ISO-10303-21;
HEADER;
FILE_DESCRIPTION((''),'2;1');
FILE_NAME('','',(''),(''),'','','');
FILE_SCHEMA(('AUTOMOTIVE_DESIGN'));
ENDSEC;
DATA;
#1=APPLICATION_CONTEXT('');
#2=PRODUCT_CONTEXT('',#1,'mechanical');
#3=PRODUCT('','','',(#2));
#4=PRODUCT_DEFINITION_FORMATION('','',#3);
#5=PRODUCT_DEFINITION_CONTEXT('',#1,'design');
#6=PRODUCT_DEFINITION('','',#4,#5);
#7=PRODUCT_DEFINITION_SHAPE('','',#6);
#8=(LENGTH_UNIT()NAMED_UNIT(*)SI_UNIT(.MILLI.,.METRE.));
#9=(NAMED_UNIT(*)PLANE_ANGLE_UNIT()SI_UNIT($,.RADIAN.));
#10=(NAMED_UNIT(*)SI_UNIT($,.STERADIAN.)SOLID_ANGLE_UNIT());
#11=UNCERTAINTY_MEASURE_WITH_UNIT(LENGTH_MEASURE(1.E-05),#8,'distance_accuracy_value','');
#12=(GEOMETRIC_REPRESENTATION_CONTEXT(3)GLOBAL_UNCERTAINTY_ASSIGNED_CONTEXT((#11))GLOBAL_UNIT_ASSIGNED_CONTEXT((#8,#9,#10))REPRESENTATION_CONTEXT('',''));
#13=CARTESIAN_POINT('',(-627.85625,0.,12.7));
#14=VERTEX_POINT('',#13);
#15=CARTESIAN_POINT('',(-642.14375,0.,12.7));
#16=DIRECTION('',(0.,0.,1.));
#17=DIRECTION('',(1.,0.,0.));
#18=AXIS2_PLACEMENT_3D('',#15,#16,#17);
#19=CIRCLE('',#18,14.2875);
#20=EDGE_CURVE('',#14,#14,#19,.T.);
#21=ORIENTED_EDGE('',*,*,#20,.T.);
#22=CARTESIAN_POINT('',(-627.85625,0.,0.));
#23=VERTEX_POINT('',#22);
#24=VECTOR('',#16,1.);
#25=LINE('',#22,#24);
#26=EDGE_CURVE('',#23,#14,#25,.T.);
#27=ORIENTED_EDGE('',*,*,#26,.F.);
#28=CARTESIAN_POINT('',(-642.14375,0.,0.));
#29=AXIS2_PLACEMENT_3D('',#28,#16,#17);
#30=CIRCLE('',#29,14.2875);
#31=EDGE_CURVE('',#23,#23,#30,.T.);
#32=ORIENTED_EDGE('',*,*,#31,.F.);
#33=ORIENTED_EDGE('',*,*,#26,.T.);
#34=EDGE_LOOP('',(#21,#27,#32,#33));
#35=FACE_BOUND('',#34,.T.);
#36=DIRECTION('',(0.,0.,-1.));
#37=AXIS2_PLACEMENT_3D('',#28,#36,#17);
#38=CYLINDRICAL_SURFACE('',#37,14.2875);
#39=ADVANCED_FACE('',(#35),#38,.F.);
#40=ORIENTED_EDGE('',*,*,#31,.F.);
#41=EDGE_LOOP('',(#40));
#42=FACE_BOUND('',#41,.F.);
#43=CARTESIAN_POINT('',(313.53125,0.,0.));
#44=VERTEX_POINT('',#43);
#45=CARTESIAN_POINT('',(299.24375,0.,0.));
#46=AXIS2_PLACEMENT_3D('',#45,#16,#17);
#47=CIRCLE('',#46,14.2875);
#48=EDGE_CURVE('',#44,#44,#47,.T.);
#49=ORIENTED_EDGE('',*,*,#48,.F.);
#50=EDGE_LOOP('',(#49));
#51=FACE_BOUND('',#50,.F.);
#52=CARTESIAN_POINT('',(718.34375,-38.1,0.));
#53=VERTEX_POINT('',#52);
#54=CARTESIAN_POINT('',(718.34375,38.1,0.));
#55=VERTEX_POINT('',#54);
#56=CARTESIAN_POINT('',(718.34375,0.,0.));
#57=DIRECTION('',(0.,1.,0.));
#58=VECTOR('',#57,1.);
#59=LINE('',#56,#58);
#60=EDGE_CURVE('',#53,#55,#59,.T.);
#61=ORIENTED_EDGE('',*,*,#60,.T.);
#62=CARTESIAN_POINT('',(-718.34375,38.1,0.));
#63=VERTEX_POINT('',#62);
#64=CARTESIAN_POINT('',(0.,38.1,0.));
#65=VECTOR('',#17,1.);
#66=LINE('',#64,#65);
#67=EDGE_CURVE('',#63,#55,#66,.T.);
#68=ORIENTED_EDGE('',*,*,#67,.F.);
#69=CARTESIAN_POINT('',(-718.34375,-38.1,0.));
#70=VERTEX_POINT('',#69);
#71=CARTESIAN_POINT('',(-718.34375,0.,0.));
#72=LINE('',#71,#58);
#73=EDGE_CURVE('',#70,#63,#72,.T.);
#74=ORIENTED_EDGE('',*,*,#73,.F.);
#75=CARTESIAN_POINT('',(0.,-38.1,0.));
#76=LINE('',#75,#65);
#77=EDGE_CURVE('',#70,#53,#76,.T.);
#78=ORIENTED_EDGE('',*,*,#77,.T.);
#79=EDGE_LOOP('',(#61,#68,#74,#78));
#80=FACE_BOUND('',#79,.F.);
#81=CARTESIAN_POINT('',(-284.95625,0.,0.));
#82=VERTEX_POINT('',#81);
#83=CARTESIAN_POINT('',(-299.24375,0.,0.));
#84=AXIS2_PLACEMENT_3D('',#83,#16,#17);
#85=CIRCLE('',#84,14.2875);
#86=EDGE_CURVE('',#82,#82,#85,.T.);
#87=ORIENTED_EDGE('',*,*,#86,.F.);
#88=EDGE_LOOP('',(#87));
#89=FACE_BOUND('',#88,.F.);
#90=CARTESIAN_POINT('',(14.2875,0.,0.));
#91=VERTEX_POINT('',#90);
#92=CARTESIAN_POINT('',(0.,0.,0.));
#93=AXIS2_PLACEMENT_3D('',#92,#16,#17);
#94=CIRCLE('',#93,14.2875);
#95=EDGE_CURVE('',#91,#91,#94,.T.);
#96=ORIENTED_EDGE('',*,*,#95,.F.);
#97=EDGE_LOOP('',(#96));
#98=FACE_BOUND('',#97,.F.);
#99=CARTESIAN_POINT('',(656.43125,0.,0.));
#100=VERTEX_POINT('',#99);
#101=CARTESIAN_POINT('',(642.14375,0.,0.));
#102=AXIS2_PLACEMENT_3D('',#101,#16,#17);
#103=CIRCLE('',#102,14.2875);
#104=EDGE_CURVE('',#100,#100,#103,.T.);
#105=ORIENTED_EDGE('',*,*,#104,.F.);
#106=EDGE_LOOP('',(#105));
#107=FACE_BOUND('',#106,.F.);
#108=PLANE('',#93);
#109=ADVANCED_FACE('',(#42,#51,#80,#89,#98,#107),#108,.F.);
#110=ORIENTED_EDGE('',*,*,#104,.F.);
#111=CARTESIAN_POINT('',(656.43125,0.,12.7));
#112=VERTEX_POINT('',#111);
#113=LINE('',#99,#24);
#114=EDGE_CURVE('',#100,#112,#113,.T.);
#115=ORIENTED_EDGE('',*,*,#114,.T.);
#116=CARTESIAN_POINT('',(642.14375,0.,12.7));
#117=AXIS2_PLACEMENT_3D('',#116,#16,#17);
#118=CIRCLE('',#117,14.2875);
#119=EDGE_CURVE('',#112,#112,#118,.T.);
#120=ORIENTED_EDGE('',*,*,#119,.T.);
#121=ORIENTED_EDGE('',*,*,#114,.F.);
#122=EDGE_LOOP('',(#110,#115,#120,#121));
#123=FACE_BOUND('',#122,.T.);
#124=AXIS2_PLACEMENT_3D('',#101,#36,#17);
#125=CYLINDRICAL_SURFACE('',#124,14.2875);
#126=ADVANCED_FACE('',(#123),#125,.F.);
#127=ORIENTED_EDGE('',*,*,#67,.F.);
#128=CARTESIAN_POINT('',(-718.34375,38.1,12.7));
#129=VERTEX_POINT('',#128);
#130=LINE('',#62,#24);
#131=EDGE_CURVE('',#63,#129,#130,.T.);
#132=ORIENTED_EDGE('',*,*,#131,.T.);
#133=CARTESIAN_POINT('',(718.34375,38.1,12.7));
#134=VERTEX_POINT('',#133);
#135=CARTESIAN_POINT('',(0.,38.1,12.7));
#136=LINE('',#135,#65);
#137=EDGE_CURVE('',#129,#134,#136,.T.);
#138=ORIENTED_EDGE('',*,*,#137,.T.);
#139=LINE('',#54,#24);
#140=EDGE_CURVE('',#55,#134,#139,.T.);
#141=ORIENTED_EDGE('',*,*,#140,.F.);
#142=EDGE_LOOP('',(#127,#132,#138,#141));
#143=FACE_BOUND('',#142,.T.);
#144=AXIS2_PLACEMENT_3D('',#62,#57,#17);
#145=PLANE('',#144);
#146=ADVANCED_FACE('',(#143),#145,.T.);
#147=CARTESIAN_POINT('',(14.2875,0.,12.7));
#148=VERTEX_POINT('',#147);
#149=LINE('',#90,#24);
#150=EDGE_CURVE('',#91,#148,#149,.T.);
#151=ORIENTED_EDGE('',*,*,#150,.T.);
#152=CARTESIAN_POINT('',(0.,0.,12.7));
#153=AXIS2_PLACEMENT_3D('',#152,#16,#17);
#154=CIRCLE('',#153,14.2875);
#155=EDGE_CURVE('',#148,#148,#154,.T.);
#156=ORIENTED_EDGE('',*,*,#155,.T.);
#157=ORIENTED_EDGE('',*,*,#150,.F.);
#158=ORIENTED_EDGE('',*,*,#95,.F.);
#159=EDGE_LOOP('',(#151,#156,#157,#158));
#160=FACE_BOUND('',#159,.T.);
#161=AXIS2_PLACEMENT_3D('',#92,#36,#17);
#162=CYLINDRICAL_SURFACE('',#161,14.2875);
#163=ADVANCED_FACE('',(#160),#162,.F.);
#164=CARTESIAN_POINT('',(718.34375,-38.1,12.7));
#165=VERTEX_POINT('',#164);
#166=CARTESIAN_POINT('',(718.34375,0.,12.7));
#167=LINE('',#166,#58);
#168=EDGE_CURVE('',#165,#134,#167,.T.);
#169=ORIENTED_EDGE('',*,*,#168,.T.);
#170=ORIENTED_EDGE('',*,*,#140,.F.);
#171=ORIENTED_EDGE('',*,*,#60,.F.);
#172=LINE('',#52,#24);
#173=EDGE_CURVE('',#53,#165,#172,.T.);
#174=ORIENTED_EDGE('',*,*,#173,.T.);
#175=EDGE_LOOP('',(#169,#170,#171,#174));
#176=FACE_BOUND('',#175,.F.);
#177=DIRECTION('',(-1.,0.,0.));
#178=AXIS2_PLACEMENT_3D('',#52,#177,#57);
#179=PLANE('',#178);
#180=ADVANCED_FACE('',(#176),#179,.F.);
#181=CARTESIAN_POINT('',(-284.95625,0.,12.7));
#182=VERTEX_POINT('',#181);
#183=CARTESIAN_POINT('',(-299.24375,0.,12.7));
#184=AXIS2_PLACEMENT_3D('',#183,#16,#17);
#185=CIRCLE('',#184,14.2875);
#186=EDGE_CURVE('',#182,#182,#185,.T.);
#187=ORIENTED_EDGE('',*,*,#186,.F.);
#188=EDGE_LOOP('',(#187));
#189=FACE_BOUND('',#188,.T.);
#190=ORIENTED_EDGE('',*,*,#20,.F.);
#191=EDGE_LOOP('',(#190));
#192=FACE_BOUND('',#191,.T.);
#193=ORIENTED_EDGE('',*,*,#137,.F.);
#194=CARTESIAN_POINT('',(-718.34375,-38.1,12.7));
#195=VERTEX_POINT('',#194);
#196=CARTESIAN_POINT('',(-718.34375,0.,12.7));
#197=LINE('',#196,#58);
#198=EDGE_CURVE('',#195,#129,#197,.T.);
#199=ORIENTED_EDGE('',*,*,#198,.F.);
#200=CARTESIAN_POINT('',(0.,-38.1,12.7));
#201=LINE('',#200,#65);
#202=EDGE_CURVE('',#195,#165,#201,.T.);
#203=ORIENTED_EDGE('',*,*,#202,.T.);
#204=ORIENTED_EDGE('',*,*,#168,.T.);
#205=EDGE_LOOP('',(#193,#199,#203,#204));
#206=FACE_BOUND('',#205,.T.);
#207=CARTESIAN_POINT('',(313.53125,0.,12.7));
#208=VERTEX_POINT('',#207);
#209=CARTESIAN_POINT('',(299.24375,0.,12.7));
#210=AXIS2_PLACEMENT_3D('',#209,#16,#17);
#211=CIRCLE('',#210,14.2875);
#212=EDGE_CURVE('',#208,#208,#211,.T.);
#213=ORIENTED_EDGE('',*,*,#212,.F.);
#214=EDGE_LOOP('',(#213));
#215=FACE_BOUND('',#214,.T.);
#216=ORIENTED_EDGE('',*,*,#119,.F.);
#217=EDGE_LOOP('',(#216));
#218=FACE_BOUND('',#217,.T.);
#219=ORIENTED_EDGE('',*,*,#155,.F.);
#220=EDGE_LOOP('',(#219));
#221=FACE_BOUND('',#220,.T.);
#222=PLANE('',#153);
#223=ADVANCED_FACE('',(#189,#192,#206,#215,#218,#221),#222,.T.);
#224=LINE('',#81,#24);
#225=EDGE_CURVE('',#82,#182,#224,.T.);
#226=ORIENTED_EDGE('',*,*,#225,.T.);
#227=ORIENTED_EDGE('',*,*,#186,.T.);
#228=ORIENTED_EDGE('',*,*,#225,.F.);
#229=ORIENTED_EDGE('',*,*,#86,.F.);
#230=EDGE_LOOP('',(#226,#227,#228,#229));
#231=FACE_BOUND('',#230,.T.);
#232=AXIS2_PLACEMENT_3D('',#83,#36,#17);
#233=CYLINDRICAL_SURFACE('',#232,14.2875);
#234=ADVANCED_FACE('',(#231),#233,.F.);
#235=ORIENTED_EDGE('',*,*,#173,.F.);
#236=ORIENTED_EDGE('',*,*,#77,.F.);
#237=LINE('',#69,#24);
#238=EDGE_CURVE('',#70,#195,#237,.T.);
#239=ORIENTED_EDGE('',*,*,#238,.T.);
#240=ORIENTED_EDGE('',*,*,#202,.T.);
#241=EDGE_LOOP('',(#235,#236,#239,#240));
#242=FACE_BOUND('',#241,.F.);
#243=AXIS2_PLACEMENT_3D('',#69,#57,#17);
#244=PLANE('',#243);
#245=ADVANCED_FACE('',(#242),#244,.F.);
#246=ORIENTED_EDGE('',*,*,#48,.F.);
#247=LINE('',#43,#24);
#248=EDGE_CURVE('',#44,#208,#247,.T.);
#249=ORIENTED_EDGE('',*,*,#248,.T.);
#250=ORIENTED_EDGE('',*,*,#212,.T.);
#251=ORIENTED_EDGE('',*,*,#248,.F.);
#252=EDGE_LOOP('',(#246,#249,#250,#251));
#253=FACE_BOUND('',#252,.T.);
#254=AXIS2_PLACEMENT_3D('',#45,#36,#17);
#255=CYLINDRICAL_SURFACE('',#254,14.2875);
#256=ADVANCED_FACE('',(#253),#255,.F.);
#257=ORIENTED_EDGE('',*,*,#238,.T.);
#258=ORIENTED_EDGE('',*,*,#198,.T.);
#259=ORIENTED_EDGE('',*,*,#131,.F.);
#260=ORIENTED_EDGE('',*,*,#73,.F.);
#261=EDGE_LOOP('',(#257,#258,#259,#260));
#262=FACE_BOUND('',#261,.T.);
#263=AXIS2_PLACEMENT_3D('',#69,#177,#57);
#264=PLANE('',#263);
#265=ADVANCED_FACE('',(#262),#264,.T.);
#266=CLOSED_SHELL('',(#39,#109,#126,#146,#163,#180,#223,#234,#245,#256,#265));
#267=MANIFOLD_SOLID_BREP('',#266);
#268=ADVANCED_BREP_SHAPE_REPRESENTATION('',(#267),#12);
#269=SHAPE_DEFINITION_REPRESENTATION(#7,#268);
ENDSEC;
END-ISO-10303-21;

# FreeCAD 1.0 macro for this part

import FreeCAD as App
import Part
import Sketcher
from FreeCAD import Vector
Q = App.Units.Quantity

doc = App.newDocument("Part")
body = doc.addObject("PartDesign::Body", "Body")

# Sketch on XY plane
sketch1 = body.newObject("Sketcher::SketchObject", "Sketch")
sketch1.AttachmentSupport = (doc.getObject("XY_Plane"), [""])
sketch1.MapMode = "FlatFace"
sketch1.addGeometry([
    Part.LineSegment(Vector(-718, 38, 0), Vector(-718, -38, 0)),  # 0
    Part.LineSegment(Vector(-718, -38, 0), Vector(718, -38, 0)),  # 1
    Part.LineSegment(Vector(718, -38, 0), Vector(718, 38, 0)),  # 2
    Part.LineSegment(Vector(718, 38, 0), Vector(-718, 38, 0)),  # 3
    Part.Circle(Vector(-642, 0, 0), Vector(0, 0, 1), 14),  # 4
    Part.Circle(Vector(-299, 0, 0), Vector(0, 0, 1), 14),  # 5
    Part.Circle(Vector(0, 0, 0), Vector(0, 0, 1), 14),  # 6
    Part.Circle(Vector(299, 0, 0), Vector(0, 0, 1), 14),  # 7
    Part.Circle(Vector(642, 0, 0), Vector(0, 0, 1), 14),  # 8
], False)
sketch1.addConstraint([
    Sketcher.Constraint("Coincident", 0, 2, 1, 1),
    Sketcher.Constraint("Coincident", 1, 2, 2, 1),
    Sketcher.Constraint("Coincident", 2, 2, 3, 1),
    Sketcher.Constraint("Coincident", 3, 2, 0, 1),
    Sketcher.Constraint("Vertical", 0),
    Sketcher.Constraint("Horizontal", 1),
    Sketcher.Constraint("Vertical", 2),
    Sketcher.Constraint("Horizontal", 3),
    Sketcher.Constraint("Coincident", 6, 3, -1, 1),
    Sketcher.Constraint("Equal", 4, 5),
    Sketcher.Constraint("Equal", 5, 6),
    Sketcher.Constraint("Equal", 6, 7),
    Sketcher.Constraint("Equal", 7, 8),
    Sketcher.Constraint("Symmetric", 5, 3, 7, 3, -1, 1),
    Sketcher.Constraint("Symmetric", 4, 3, 8, 3, -1, 1),
    Sketcher.Constraint("Symmetric", 0, 2, 2, 2, -1, 1),
    Sketcher.Constraint("PointOnObject", 4, 3, -1),
    Sketcher.Constraint("PointOnObject", 5, 3, -1),
    Sketcher.Constraint("DistanceY", 0, 2, 0, 1, Q("3 in")),
    Sketcher.Constraint("Diameter", 4, Q("1.125 in")),
    Sketcher.Constraint("DistanceX", 0, 2, 4, 3, Q("3 in")),
    Sketcher.Constraint("DistanceX", 4, 3, 5, 3, Q("13.5 in")),
    Sketcher.Constraint("DistanceX", 1, 1, 1, 2, Q("56.5625 in")),
])
pad1 = body.newObject("PartDesign::Pad", "Pad")
pad1.Profile = sketch1
pad1.Length = Q("0.5 in")

doc.recompute()
